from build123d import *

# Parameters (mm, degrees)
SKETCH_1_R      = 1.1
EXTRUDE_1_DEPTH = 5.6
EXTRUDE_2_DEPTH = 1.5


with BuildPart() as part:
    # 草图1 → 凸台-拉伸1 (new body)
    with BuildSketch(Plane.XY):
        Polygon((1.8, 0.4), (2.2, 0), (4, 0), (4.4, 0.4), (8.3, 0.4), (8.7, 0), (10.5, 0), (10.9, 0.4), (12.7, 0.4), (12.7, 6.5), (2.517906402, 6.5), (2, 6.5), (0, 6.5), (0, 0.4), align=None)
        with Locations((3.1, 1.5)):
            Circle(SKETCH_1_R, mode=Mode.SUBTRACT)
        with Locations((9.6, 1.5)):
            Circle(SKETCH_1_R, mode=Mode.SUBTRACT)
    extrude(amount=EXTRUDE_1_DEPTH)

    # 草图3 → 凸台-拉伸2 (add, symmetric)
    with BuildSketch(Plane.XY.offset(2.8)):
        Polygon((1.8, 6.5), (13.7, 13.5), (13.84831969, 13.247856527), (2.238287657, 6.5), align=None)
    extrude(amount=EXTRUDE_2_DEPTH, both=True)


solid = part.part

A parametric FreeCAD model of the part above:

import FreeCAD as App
import Part
import Sketcher
Q = App.Units.Quantity

doc = App.newDocument("Part")
body = doc.addObject("PartDesign::Body", "Body")

# Sketch on XY plane
sketch1 = body.newObject("Sketcher::SketchObject", "Sketch")
sketch1.AttachmentSupport = (doc.getObject("XY_Plane"), [""])
sketch1.MapMode = "FlatFace"
sketch1.addGeometry([
    Part.LineSegment(App.Vector(1.8, 0.4, 0), App.Vector(2.2, 0, 0)),  # 0
    Part.LineSegment(App.Vector(2.2, 0, 0), App.Vector(4, 0, 0)),  # 1
    Part.LineSegment(App.Vector(4, 0, 0), App.Vector(4.4, 0.4, 0)),  # 2
    Part.LineSegment(App.Vector(4.4, 0.4, 0), App.Vector(8.3, 0.4, 0)),  # 3
    Part.LineSegment(App.Vector(8.3, 0.4, 0), App.Vector(8.7, 0, 0)),  # 4
    Part.LineSegment(App.Vector(8.7, 0, 0), App.Vector(10.5, 0, 0)),  # 5
    Part.LineSegment(App.Vector(10.5, 0, 0), App.Vector(10.9, 0.4, 0)),  # 6
    Part.LineSegment(App.Vector(10.9, 0.4, 0), App.Vector(12.7, 0.4, 0)),  # 7
    Part.LineSegment(App.Vector(12.7, 0.4, 0), App.Vector(12.7, 6.5, 0)),  # 8
    Part.LineSegment(App.Vector(12.7, 6.5, 0), App.Vector(0, 6.5, 0)),  # 9
    Part.LineSegment(App.Vector(0, 6.5, 0), App.Vector(0, 0.4, 0)),  # 10
    Part.LineSegment(App.Vector(0, 0.4, 0), App.Vector(1.8, 0.4, 0)),  # 11
    Part.Circle(App.Vector(3.1, 1.5, 0), App.Vector(0, 0, 1), 1.1),  # 12
    Part.Circle(App.Vector(9.6, 1.5, 0), App.Vector(0, 0, 1), 1.1),  # 13
], False)
sketch1.addConstraint([
    Sketcher.Constraint("Coincident", 0, 2, 1, 1),
    Sketcher.Constraint("Coincident", 1, 2, 2, 1),
    Sketcher.Constraint("Coincident", 2, 2, 3, 1),
    Sketcher.Constraint("Coincident", 3, 2, 4, 1),
    Sketcher.Constraint("Coincident", 4, 2, 5, 1),
    Sketcher.Constraint("Coincident", 5, 2, 6, 1),
    Sketcher.Constraint("Coincident", 6, 2, 7, 1),
    Sketcher.Constraint("Coincident", 7, 2, 8, 1),
    Sketcher.Constraint("Coincident", 8, 2, 9, 1),
    Sketcher.Constraint("Coincident", 9, 2, 10, 1),
    Sketcher.Constraint("Coincident", 10, 2, 11, 1),
    Sketcher.Constraint("Coincident", 11, 2, 0, 1),
    Sketcher.Constraint("Horizontal", 1),
    Sketcher.Constraint("Horizontal", 3),
    Sketcher.Constraint("Horizontal", 5),
    Sketcher.Constraint("Horizontal", 7),
    Sketcher.Constraint("Vertical", 8),
    Sketcher.Constraint("Horizontal", 9),
    Sketcher.Constraint("Vertical", 10),
    Sketcher.Constraint("Horizontal", 11),
    Sketcher.Constraint("Equal", 12, 13),
    Sketcher.Constraint("PointOnObject", 0, 2, -1),
    Sketcher.Constraint("PointOnObject", 4, 2, -1),
    Sketcher.Constraint("PointOnObject", 9, 2, -2),
    Sketcher.Constraint("Perpendicular", 0, 2),
    Sketcher.Constraint("Perpendicular", 2, 4),
    Sketcher.Constraint("Perpendicular", 4, 6),
    Sketcher.Constraint("Horizontal", 12, 3, 13, 3),
    Sketcher.Constraint("Horizontal", 3, 2, 6, 2),
    Sketcher.Constraint("Horizontal", 7, 2, 10, 2),
    Sketcher.Constraint("Equal", 1, 5),
    Sketcher.Constraint("Equal", 5, 7),
    Sketcher.Constraint("Equal", 7, 11),
    Sketcher.Constraint("Equal", 0, 2),
    Sketcher.Constraint("Diameter", 12, Q("2.2 mm")),
    Sketcher.Constraint("DistanceX", 1, 1, 1, 2, Q("1.8 mm")),
    Sketcher.Constraint("DistanceX", 3, 1, 3, 2, Q("3.9 mm")),
    Sketcher.Constraint("DistanceX", 9, 2, 9, 1, Q("12.7 mm")),
    Sketcher.Constraint("DistanceY", 8, 1, 8, 2, Q("6.1 mm")),
    Sketcher.Constraint("DistanceY", 13, 3, 8, 2, Q("5 mm")),
    Sketcher.Constraint("DistanceX", -1, 1, 12, 3, Q("3.1 mm")),
    Sketcher.Constraint("DistanceX", -1, 1, 13, 3, Q("9.6 mm")),
])
pad1 = body.newObject("PartDesign::Pad", "Pad")
pad1.Profile = sketch1
pad1.Length = 5.6

# Sketch on XY plane
sketch2 = body.newObject("Sketcher::SketchObject", "Sketch001")
sketch2.AttachmentSupport = (doc.getObject("XY_Plane"), [""])
sketch2.MapMode = "FlatFace"
sketch2.AttachmentOffset = App.Placement(App.Vector(0, 0, 2.8), App.Rotation())
sketch2.addGeometry([
    Part.LineSegment(App.Vector(13.7, 13.5, 0), App.Vector(1.8, 6.5, 0)),
    Part.LineSegment(App.Vector(1.8, 6.5, 0), App.Vector(2.24, 6.5, 0)),
    Part.LineSegment(App.Vector(2.24, 6.5, 0), App.Vector(13.85, 13.25, 0)),
    Part.LineSegment(App.Vector(13.85, 13.25, 0), App.Vector(13.7, 13.5, 0)),
], False)
sketch2.addConstraint([
    Sketcher.Constraint("Coincident", 0, 2, 1, 1),
    Sketcher.Constraint("Coincident", 1, 2, 2, 1),
    Sketcher.Constraint("Coincident", 2, 2, 3, 1),
    Sketcher.Constraint("Coincident", 3, 2, 0, 1),
    Sketcher.Constraint("Horizontal", 1),
    Sketcher.Constraint("Perpendicular", 0, 3),
    Sketcher.Constraint("DistanceY", 1, 2, 3, 2, Q("7 mm")),
    Sketcher.Constraint("DistanceX", -1, 1, 0, 2, Q("1.8 mm")),
    Sketcher.Constraint("DistanceY", -1, 1, 0, 2, Q("6.5 mm")),
    Sketcher.Constraint("DistanceX", -1, 1, 3, 2, Q("13.7 mm")),
    Sketcher.Constraint("DistanceX", 1, 1, 1, 2, Q("0.438288 mm")),
    Sketcher.Constraint("DistanceX", -1, 1, 2, 2, Q("13.84832 mm")),
])
pad2 = body.newObject("PartDesign::Pad", "Pad001")
pad2.Profile = sketch2
pad2.Length = 3
pad2.Midplane = True

doc.recompute()
